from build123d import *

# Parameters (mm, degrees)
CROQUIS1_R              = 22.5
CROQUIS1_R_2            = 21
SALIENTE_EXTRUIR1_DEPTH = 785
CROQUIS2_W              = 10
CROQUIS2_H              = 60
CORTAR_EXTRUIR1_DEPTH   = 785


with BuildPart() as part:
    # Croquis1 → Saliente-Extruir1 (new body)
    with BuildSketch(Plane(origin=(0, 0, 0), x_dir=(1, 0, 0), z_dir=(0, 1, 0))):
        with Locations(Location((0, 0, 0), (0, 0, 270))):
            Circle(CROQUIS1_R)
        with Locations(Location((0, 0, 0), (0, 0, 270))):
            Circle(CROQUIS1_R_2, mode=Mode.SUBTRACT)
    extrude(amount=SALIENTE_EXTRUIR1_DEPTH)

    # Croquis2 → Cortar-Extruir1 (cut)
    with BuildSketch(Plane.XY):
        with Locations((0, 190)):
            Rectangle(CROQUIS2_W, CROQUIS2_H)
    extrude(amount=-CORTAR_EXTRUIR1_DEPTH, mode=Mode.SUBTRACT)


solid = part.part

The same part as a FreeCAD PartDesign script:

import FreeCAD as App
import Part
import Sketcher
from FreeCAD import Vector
Q = App.Units.Quantity


def add_polygon(sketch, points):
    """Adds a closed chain of lines whose ends are joined by coincident constraints."""
    first, n = sketch.GeometryCount, len(points)
    for a, b in zip(points, points[1:] + points[:1]):
        sketch.addGeometry(Part.LineSegment(App.Vector(*a, 0), App.Vector(*b, 0)), False)
    for i in range(n):
        sketch.addConstraint(Sketcher.Constraint("Coincident", first + i, 2, first + (i + 1) % n, 1))

doc = App.newDocument("Part")
body = doc.addObject("PartDesign::Body", "Body")

sketch1 = body.newObject("Sketcher::SketchObject", "Sketch")
sketch1.AttachmentSupport = (doc.getObject("XZ_Plane"), [""])
sketch1.MapMode = "FlatFace"
sketch1.addGeometry(Part.Circle(Vector(0, 0, 0), Vector(0, 0, 1), 22), False)
sketch1.addGeometry(Part.Circle(Vector(0, 0, 0), Vector(0, 0, 1), 21), False)
sketch1.addConstraint(Sketcher.Constraint("Coincident", 0, 3, -1, 1))
sketch1.addConstraint(Sketcher.Constraint("Coincident", 1, 3, -1, 1))
sketch1.addConstraint(Sketcher.Constraint("Diameter", 0, Q("45 mm")))
sketch1.addConstraint(Sketcher.Constraint("Diameter", 1, Q("42 mm")))
pad1 = body.newObject("PartDesign::Pad", "Pad")
pad1.Profile = sketch1
pad1.Length = 785
pad1.Reversed = True

sketch2 = body.newObject("Sketcher::SketchObject", "Sketch001")
sketch2.AttachmentSupport = (doc.getObject("XY_Plane"), [""])
sketch2.MapMode = "FlatFace"
add_polygon(sketch2, [(-5, 220), (-5, 160), (5, 160), (5, 220)])
sketch2.addConstraint(Sketcher.Constraint("Vertical", 0))
sketch2.addConstraint(Sketcher.Constraint("Horizontal", 1))
sketch2.addConstraint(Sketcher.Constraint("Vertical", 2))
sketch2.addConstraint(Sketcher.Constraint("Horizontal", 3))
sketch2.addConstraint(Sketcher.Constraint("DistanceX", 1, 1, 1, 2, Q("10 mm")))
sketch2.addConstraint(Sketcher.Constraint("DistanceY", 0, 2, 0, 1, Q("60 mm")))
sketch2.addConstraint(Sketcher.Constraint("DistanceX", 0, 2, -1, 1, Q("5 mm")))
sketch2.addConstraint(Sketcher.Constraint("DistanceY", -1, 1, 0, 2, Q("160 mm")))
pocket1 = body.newObject("PartDesign::Pocket", "Pocket")
pocket1.Profile = sketch2
pocket1.Length = 785

doc.recompute()
